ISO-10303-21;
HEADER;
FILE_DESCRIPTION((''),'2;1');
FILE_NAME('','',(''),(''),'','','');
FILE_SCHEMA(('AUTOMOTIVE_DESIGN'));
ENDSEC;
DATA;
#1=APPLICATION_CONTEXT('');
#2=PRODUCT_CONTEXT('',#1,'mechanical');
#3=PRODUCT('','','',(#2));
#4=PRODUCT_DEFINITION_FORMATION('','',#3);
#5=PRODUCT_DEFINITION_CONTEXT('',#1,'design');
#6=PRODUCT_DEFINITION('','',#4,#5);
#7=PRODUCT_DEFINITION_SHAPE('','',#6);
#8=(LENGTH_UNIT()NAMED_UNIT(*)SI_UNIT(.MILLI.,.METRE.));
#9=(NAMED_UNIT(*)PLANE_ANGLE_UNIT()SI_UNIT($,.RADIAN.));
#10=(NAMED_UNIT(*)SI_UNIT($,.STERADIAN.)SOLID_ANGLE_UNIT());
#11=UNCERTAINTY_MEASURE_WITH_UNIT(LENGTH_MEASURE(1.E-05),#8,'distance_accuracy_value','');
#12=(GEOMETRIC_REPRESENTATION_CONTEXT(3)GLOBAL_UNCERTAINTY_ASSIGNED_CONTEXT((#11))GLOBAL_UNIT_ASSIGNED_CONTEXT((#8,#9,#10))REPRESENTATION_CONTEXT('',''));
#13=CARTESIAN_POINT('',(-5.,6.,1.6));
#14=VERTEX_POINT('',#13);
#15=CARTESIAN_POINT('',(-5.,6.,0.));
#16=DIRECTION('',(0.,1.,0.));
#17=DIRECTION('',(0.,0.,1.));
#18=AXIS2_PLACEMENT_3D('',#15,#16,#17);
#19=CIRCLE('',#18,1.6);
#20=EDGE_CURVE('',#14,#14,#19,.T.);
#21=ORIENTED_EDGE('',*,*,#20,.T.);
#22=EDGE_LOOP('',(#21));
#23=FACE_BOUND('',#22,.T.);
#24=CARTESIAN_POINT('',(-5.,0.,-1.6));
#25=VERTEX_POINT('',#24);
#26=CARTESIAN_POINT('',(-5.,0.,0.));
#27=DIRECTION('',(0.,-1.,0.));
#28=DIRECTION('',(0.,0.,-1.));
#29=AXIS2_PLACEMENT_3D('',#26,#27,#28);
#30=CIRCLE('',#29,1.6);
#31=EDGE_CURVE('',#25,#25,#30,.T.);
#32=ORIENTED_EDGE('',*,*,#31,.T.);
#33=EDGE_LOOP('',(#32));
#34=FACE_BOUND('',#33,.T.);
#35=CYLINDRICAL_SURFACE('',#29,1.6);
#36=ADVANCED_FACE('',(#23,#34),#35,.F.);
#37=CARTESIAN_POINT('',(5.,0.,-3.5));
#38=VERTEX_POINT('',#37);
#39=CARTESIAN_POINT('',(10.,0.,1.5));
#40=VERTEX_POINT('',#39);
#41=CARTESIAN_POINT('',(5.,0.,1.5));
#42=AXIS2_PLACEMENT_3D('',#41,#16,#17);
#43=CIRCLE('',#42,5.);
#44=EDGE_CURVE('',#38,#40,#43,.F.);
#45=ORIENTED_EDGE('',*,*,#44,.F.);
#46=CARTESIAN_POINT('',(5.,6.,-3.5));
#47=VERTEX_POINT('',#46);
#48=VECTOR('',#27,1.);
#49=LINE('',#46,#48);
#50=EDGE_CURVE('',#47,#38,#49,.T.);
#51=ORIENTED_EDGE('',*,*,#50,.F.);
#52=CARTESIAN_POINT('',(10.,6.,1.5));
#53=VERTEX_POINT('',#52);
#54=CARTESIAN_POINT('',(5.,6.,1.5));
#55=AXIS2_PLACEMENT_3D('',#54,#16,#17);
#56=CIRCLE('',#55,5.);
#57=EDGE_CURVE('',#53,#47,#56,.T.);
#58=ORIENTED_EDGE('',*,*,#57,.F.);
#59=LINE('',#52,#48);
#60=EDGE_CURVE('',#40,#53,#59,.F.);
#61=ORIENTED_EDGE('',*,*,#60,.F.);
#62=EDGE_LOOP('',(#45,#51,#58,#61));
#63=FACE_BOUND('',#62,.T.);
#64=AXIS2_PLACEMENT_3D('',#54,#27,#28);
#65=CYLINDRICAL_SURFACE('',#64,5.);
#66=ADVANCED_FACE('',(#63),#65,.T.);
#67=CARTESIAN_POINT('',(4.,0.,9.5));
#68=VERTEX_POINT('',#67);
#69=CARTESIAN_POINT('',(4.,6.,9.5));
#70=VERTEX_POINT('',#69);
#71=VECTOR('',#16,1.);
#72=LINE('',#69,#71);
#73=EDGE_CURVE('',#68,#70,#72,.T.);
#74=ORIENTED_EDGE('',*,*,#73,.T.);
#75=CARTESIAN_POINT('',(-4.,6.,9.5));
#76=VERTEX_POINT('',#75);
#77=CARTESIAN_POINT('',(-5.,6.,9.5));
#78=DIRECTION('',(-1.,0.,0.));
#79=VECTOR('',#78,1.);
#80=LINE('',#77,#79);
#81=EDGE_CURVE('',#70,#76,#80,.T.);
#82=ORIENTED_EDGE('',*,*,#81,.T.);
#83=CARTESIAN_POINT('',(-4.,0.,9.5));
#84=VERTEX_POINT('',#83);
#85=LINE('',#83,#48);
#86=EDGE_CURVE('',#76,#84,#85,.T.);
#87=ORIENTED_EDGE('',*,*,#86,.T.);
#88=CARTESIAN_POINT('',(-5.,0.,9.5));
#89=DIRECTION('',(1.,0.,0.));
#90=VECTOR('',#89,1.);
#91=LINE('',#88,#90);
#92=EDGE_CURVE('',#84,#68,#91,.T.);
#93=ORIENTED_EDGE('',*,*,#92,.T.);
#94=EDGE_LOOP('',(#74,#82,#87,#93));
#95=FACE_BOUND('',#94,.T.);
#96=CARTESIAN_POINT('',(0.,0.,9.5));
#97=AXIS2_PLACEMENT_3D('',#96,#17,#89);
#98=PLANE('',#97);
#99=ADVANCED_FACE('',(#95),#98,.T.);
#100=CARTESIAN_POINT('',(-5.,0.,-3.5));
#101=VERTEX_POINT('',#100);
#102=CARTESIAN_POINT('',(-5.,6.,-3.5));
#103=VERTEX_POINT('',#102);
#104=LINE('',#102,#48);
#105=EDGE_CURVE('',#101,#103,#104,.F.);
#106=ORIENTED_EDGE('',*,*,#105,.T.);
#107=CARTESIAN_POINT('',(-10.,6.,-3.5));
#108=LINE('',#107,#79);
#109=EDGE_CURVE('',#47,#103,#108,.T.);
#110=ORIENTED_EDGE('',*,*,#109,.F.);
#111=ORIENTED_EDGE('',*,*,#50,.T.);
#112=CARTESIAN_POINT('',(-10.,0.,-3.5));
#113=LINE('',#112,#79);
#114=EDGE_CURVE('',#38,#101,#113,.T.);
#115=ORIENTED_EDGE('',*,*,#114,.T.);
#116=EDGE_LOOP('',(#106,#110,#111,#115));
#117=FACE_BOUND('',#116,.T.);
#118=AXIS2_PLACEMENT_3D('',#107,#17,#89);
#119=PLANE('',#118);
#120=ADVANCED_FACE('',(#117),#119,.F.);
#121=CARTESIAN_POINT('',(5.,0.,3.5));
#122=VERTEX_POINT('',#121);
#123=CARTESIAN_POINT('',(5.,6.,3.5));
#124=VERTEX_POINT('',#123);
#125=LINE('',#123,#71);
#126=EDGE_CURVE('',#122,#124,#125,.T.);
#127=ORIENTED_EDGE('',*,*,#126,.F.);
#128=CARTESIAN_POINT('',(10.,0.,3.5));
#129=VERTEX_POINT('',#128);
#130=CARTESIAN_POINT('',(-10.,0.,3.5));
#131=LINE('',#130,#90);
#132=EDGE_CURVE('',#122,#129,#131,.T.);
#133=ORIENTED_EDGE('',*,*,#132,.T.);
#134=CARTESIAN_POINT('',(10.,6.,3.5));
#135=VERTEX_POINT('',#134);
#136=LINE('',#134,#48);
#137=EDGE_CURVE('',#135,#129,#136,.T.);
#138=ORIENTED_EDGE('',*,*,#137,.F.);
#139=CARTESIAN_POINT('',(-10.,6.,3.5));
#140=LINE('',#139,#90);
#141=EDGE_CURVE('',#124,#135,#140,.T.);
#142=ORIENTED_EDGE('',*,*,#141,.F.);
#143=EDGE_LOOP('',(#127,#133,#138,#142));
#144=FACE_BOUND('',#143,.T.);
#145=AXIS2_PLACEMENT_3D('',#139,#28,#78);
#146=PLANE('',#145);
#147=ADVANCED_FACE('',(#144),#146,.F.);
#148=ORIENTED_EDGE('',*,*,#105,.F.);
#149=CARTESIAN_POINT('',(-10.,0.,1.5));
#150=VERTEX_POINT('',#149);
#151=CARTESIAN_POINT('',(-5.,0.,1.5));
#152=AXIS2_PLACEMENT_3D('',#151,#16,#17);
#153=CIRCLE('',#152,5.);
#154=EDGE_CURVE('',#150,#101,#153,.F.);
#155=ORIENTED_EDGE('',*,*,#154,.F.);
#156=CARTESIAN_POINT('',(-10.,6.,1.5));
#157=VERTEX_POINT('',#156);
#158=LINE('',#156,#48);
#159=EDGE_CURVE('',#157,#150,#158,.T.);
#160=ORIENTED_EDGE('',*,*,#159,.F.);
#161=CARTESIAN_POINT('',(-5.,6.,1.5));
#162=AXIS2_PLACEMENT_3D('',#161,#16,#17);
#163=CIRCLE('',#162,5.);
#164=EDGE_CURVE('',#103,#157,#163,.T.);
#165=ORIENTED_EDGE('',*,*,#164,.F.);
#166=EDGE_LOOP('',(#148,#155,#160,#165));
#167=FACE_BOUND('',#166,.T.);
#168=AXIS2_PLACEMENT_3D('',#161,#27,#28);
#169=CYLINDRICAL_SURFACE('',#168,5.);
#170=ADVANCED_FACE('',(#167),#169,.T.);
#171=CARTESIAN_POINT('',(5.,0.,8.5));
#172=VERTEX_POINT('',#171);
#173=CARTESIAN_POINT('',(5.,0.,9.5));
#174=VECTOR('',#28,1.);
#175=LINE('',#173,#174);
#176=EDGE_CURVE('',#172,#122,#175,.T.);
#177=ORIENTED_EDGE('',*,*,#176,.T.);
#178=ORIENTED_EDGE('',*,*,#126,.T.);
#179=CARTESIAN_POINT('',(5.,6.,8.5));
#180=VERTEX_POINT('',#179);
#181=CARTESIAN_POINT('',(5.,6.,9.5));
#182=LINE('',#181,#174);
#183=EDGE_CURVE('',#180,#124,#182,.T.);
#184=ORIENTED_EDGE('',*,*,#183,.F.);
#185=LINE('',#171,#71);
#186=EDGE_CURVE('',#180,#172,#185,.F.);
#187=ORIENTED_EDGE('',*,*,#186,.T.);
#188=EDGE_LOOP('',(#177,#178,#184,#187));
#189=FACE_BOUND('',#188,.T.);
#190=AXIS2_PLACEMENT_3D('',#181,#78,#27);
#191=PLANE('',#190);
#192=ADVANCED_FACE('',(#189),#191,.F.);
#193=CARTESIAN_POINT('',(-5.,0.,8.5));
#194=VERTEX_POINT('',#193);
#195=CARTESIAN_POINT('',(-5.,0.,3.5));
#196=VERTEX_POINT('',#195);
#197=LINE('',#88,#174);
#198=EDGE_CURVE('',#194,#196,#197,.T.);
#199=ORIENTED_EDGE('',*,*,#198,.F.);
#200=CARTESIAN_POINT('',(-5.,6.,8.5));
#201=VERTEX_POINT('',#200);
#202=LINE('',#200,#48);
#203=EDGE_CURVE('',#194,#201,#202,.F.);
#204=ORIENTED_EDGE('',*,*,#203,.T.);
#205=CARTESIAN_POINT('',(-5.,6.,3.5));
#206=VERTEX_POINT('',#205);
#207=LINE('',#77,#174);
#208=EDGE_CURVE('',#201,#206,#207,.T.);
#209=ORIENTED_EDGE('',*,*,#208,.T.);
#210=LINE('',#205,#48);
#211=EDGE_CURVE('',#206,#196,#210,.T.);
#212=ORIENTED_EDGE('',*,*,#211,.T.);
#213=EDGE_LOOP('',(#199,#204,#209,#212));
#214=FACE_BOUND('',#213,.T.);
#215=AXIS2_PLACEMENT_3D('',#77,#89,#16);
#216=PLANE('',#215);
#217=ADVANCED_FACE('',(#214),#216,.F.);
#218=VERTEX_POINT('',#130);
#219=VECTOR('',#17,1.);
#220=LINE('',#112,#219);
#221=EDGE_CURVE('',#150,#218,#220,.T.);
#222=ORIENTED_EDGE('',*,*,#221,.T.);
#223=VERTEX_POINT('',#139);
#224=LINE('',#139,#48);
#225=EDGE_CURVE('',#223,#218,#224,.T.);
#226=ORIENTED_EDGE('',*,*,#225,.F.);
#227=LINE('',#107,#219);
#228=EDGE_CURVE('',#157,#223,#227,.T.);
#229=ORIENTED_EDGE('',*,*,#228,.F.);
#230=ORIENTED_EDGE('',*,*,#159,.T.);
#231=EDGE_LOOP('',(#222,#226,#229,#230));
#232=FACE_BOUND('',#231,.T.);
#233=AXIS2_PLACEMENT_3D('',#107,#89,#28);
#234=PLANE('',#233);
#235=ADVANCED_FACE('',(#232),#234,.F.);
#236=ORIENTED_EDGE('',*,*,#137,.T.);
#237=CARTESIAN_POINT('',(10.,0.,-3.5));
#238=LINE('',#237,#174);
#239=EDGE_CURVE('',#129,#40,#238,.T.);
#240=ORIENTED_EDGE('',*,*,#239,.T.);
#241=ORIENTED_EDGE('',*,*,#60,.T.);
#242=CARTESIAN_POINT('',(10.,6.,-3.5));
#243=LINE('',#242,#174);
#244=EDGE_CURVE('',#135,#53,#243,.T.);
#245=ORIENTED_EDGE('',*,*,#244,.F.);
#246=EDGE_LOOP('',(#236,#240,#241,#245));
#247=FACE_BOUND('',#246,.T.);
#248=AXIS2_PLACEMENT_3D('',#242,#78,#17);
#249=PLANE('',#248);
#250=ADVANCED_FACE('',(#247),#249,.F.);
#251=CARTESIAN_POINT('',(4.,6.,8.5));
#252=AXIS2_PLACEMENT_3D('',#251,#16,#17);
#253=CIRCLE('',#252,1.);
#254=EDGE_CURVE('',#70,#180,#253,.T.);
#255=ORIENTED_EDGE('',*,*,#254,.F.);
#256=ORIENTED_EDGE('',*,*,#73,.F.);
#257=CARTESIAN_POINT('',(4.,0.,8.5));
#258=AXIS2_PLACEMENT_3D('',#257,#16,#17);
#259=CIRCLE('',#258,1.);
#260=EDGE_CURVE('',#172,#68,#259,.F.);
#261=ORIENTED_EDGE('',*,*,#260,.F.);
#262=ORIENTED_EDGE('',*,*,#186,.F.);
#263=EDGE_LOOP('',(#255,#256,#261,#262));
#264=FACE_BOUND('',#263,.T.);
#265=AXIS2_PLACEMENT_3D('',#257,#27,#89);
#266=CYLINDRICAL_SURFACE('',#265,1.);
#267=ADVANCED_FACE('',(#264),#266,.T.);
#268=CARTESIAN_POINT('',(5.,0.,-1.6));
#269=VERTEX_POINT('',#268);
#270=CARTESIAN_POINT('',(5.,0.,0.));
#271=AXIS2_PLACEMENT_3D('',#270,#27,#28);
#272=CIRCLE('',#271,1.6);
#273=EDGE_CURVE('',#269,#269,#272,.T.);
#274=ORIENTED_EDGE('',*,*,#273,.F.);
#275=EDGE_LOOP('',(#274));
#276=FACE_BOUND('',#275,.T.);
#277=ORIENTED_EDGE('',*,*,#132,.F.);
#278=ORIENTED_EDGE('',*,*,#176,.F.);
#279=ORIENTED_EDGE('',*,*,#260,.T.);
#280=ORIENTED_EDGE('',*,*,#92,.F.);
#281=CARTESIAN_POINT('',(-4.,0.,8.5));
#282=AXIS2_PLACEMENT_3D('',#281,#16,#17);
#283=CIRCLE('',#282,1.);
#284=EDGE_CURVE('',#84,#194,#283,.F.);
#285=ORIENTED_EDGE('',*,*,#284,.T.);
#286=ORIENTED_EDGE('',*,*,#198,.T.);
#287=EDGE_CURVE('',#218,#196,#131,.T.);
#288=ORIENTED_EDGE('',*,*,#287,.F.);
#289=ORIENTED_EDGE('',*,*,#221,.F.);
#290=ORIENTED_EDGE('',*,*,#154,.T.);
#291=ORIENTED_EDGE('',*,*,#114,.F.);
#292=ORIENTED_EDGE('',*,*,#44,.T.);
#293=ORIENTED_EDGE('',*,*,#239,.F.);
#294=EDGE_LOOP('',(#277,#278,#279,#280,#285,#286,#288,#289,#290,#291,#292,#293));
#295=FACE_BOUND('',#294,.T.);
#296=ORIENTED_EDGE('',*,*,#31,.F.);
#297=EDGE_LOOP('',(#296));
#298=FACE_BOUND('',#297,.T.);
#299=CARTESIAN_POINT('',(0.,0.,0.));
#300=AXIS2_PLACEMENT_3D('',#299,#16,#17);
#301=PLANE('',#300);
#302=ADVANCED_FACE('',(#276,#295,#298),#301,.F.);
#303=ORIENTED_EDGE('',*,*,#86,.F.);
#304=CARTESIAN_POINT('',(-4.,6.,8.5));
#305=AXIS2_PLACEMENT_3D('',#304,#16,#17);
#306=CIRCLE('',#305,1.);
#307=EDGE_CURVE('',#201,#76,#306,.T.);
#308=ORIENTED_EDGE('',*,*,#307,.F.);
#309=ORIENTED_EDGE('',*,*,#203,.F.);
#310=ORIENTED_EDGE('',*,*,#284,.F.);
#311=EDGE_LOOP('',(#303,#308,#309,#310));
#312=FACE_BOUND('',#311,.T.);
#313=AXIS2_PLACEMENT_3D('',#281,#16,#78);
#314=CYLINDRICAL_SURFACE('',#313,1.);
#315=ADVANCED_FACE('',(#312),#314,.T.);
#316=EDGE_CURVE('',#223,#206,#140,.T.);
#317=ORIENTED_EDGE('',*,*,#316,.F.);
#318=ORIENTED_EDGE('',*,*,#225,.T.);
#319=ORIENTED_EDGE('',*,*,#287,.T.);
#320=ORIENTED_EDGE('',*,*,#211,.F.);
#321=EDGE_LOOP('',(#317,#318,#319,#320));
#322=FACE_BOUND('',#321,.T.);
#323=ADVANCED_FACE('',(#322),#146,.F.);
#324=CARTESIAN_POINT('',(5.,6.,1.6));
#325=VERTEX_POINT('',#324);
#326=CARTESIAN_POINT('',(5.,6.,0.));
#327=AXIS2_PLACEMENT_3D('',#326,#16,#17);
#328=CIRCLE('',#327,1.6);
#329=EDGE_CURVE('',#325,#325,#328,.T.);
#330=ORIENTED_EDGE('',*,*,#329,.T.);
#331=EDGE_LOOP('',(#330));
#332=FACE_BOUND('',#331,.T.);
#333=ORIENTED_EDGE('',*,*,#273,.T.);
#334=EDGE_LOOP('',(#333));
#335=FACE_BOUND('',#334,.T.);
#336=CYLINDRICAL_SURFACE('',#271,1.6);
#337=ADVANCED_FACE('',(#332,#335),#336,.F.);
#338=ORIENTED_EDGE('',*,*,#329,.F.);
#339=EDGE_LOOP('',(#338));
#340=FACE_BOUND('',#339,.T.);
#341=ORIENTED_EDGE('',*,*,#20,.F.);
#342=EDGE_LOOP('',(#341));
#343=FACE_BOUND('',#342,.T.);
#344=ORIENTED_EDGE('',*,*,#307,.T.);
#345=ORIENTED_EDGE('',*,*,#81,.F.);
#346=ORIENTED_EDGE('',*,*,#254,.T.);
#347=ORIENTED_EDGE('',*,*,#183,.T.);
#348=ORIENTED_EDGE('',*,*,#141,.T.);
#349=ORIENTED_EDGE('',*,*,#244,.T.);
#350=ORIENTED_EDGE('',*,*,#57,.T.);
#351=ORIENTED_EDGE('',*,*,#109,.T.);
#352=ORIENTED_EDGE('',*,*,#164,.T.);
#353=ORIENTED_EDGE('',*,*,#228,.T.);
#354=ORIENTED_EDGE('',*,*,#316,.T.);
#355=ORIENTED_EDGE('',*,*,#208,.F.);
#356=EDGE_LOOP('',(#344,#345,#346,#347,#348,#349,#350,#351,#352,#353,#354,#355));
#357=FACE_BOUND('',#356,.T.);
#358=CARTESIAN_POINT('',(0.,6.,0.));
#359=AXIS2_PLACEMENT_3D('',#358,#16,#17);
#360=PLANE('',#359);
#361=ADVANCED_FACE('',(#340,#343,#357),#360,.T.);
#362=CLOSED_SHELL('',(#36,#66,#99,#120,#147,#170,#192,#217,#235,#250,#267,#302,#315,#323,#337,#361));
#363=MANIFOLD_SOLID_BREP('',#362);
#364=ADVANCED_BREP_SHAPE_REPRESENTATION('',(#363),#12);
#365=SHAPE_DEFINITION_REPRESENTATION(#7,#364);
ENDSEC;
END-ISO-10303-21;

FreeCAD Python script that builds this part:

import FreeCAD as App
import Part
import Sketcher
from FreeCAD import Vector


def edges_at(feature, points):
    """Names of the edges that pass closest to the given points."""
    edges = feature.Shape.Edges
    near = lambda p: min(range(len(edges)), key=lambda i: edges[i].distToShape(Part.Vertex(*p))[0])
    return sorted({f"Edge{near(p) + 1}" for p in points})


def add_polygon(sketch, points):
    """Adds a closed chain of lines whose ends are joined by coincident constraints."""
    first, n = sketch.GeometryCount, len(points)
    for a, b in zip(points, points[1:] + points[:1]):
        sketch.addGeometry(Part.LineSegment(App.Vector(*a, 0), App.Vector(*b, 0)), False)
    for i in range(n):
        sketch.addConstraint(Sketcher.Constraint("Coincident", first + i, 2, first + (i + 1) % n, 1))

doc = App.newDocument("Part")
body = doc.addObject("PartDesign::Body", "Body")

sketch1 = doc.addObject("Sketcher::SketchObject", "Sketch")
body.addObject(sketch1)
sketch1.AttachmentSupport = (doc.XZ_Plane, [""])
sketch1.MapMode = "FlatFace"
add_polygon(sketch1, [(-10, -3.5), (-10, 3.5), (10, 3.5), (10, -3.5)])
sketch1.addConstraint([
    Sketcher.Constraint("Vertical", 0),
    Sketcher.Constraint("Horizontal", 1),
    Sketcher.Constraint("Vertical", 2),
    Sketcher.Constraint("Horizontal", 3),
    Sketcher.Constraint("Symmetric", 0, 2, 2, 2, -1, 1),
    Sketcher.Constraint("DistanceX", 1, 1, 1, 2, 20.0),
    Sketcher.Constraint("DistanceY", 0, 1, 0, 2, 7.0),
])
pad1 = doc.addObject("PartDesign::Pad", "Pad")
body.addObject(pad1)
pad1.Profile = sketch1
pad1.Length = 6
pad1.Reversed = True

sketch2 = doc.addObject("Sketcher::SketchObject", "Sketch001")
body.addObject(sketch2)
sketch2.AttachmentSupport = (doc.XY_Plane, [""])
sketch2.MapMode = "FlatFace"
sketch2.AttachmentOffset = App.Placement(Vector(0, 0, 3.5), App.Rotation())
add_polygon(sketch2, [(-5, 6), (-5, 0), (5, 0), (5, 6)])
sketch2.addConstraint([
    Sketcher.Constraint("Vertical", 0),
    Sketcher.Constraint("Horizontal", 1),
    Sketcher.Constraint("Vertical", 2),
    Sketcher.Constraint("Horizontal", 3),
    Sketcher.Constraint("Symmetric", 0, 2, 1, 2, -1, 1),
    Sketcher.Constraint("DistanceX", 1, 1, 1, 2, 10.0),
    Sketcher.Constraint("DistanceY", 0, 2, 0, 1, 6.0),
])
pad2 = doc.addObject("PartDesign::Pad", "Pad001")
body.addObject(pad2)
pad2.Profile = sketch2
pad2.Length = 6
doc.recompute()

fillet = doc.addObject("PartDesign::Fillet", "Fillet")
body.addObject(fillet)
fillet.Base = (pad2, edges_at(pad2, [(-5, 3, 9.5), (5, 3, 9.5)]))
fillet.Radius = 1

sketch3 = doc.addObject("Sketcher::SketchObject", "Sketch002")
body.addObject(sketch3)
sketch3.AttachmentSupport = (doc.XZ_Plane, [""])
sketch3.MapMode = "FlatFace"
sketch3.addGeometry([
    Part.Circle(Vector(-5, 0, 0), Vector(0, 0, 1), 1.6),
    Part.Circle(Vector(5, 0, 0), Vector(0, 0, 1), 1.6),
], False)
sketch3.addConstraint([
    Sketcher.Constraint("Equal", 0, 1),
    Sketcher.Constraint("Symmetric", 0, 3, 1, 3, -1, 1),
    Sketcher.Constraint("PointOnObject", 0, 3, -1),
    Sketcher.Constraint("Diameter", 0, 3.2),
    Sketcher.Constraint("DistanceX", 0, 3, -1, 1, 5.0),
])
doc.recompute()
hole = doc.addObject("PartDesign::Hole", "Hole")
body.addObject(hole)
hole.Profile = sketch3
hole.ThreadType = "None"
hole.Diameter = 3.2
hole.DepthType = "ThroughAll"
doc.recompute()

fillet2 = doc.addObject("PartDesign::Fillet", "Fillet001")
body.addObject(fillet2)
fillet2.Base = (hole, edges_at(hole, [(-10, 3, -3.5), (10, 3, -3.5)]))
fillet2.Radius = 5

doc.recompute()
